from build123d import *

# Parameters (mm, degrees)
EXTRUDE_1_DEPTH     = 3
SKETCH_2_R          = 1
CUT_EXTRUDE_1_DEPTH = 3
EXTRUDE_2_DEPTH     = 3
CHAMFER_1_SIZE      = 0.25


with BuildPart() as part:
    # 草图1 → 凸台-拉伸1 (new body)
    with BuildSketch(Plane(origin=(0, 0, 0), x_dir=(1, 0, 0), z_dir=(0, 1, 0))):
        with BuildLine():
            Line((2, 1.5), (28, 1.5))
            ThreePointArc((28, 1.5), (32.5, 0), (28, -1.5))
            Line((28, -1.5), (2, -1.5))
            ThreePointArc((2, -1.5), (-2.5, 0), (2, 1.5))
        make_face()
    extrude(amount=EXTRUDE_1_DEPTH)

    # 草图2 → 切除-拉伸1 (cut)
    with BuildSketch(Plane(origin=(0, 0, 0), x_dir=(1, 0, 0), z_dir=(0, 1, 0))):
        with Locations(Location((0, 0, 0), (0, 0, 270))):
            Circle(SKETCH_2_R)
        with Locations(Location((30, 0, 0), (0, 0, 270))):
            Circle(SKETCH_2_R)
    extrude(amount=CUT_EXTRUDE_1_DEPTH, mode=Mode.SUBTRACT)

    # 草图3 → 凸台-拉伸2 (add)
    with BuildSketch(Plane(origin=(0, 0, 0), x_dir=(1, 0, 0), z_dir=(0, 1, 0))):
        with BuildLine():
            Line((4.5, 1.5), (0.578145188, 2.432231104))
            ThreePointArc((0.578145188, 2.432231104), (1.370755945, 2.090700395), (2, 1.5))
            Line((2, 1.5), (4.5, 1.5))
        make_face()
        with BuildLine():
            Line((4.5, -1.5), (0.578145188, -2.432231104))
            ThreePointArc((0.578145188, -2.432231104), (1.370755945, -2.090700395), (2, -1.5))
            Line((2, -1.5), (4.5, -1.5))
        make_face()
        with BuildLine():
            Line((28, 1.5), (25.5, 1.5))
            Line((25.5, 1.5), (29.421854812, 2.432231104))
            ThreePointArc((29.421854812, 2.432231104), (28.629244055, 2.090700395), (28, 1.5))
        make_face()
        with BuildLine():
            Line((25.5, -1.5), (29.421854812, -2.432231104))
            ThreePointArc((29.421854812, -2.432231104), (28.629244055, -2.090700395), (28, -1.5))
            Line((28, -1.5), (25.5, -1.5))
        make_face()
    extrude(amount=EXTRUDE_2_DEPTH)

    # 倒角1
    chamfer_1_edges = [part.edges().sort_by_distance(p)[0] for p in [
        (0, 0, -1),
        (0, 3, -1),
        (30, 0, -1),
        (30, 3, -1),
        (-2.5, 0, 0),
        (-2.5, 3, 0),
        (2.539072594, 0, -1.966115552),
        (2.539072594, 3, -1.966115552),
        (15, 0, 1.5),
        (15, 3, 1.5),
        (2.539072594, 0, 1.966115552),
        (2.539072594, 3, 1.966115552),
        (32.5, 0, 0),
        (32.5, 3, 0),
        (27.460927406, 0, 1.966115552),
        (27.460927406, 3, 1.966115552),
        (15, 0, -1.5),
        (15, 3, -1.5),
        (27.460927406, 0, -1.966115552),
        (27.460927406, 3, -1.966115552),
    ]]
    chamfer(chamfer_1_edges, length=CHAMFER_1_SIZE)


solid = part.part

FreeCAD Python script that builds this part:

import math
import FreeCAD as App
import Part
import Sketcher


def edges_at(feature, points):
    """Names of the edges that pass closest to the given points."""
    edges = feature.Shape.Edges
    near = lambda p: min(range(len(edges)), key=lambda i: edges[i].distToShape(Part.Vertex(*p))[0])
    return sorted({f"Edge{near(p) + 1}" for p in points})

doc = App.newDocument("Part")
body = doc.addObject("PartDesign::Body", "Body")

sketch1 = body.newObject("Sketcher::SketchObject", "Sketch")
sketch1.AttachmentSupport = (doc.getObject("XZ_Plane"), [""])
sketch1.MapMode = "FlatFace"
sketch1.addGeometry([
    Part.LineSegment(App.Vector(28, -1.5, 0), App.Vector(2, -1.5, 0)),
    Part.ArcOfCircle(Part.Circle(App.Vector(0, 0, 0), App.Vector(0, 0, 1), 2.5), math.radians(37), math.radians(323)),
    Part.LineSegment(App.Vector(2, 1.5, 0), App.Vector(28, 1.5, 0)),
    Part.ArcOfCircle(Part.Circle(App.Vector(30, 0, 0), App.Vector(0, 0, 1), 2.5), math.radians(-143), math.radians(143)),
], False)
sketch1.addConstraint([
    Sketcher.Constraint("Coincident", 0, 2, 1, 2),
    Sketcher.Constraint("Coincident", 1, 1, 2, 1),
    Sketcher.Constraint("Coincident", 2, 2, 3, 2),
    Sketcher.Constraint("Coincident", 3, 1, 0, 1),
    Sketcher.Constraint("Horizontal", 0),
    Sketcher.Constraint("Horizontal", 2),
    Sketcher.Constraint("Coincident", 1, 3, -1, 1),
    Sketcher.Constraint("Equal", 1, 3),
    Sketcher.Constraint("Symmetric", 2, 2, 3, 1, -1),
    Sketcher.Constraint("Radius", 1, 2.5),
    Sketcher.Constraint("DistanceX", 0, 2, 0, 1, 26.0),
    Sketcher.Constraint("DistanceX", -1, 1, 3, 3, 30.0),
])
pad1 = body.newObject("PartDesign::Pad", "Pad")
pad1.Profile = sketch1
pad1.Length = 3
pad1.Reversed = True

sketch2 = body.newObject("Sketcher::SketchObject", "Sketch001")
sketch2.AttachmentSupport = (doc.getObject("XZ_Plane"), [""])
sketch2.MapMode = "FlatFace"
sketch2.addGeometry([
    Part.Circle(App.Vector(0, 0, 0), App.Vector(0, 0, 1), 1),
    Part.Circle(App.Vector(30, 0, 0), App.Vector(0, 0, 1), 1),
], False)
sketch2.addConstraint([
    Sketcher.Constraint("Coincident", 0, 3, -1, 1),
    Sketcher.Constraint("Equal", 0, 1),
    Sketcher.Constraint("PointOnObject", 1, 3, -1),
    Sketcher.Constraint("Diameter", 0, 2.0),
    Sketcher.Constraint("DistanceX", -1, 1, 1, 3, 30.0),
])
pocket1 = body.newObject("PartDesign::Pocket", "Pocket")
pocket1.Profile = sketch2
pocket1.Length = 3

sketch3 = body.newObject("Sketcher::SketchObject", "Sketch002")
sketch3.AttachmentSupport = (doc.getObject("XZ_Plane"), [""])
sketch3.MapMode = "FlatFace"
sketch3.addGeometry([
    Part.LineSegment(App.Vector(4.5, -1.5, 0), App.Vector(0.6, -2.4, 0)),
    Part.ArcOfCircle(Part.Circle(App.Vector(0, 0, 0), App.Vector(0, 0, 1), 2.5), math.radians(-77), math.radians(-37)),
    Part.LineSegment(App.Vector(2, -1.5, 0), App.Vector(4.5, -1.5, 0)),
    Part.LineSegment(App.Vector(0.6, 2.4, 0), App.Vector(4.5, 1.5, 0)),
    Part.LineSegment(App.Vector(4.5, 1.5, 0), App.Vector(2, 1.5, 0)),
    Part.ArcOfCircle(Part.Circle(App.Vector(0, 0, 0), App.Vector(0, 0, 1), 2.5), math.radians(37), math.radians(77)),
    Part.LineSegment(App.Vector(25.5, -1.5, 0), App.Vector(28, -1.5, 0)),
    Part.ArcOfCircle(Part.Circle(App.Vector(30, 0, 0), App.Vector(0, 0, 1), 2.5), math.radians(-143), math.radians(-103)),
    Part.LineSegment(App.Vector(29.4, -2.4, 0), App.Vector(25.5, -1.5, 0)),
    Part.LineSegment(App.Vector(25.5, 1.5, 0), App.Vector(29.4, 2.4, 0)),
    Part.ArcOfCircle(Part.Circle(App.Vector(30, 0, 0), App.Vector(0, 0, 1), 2.5), math.radians(103), math.radians(143)),
    Part.LineSegment(App.Vector(28, 1.5, 0), App.Vector(25.5, 1.5, 0)),
], False)
sketch3.addConstraint([
    Sketcher.Constraint("Tangent", 0, 2, 1, 1),
    Sketcher.Constraint("Coincident", 1, 2, 2, 1),
    Sketcher.Constraint("Coincident", 2, 2, 0, 1),
    Sketcher.Constraint("Coincident", 3, 2, 4, 1),
    Sketcher.Constraint("Coincident", 4, 2, 5, 1),
    Sketcher.Constraint("Tangent", 5, 2, 3, 1),
    Sketcher.Constraint("Coincident", 6, 2, 7, 1),
    Sketcher.Constraint("Tangent", 7, 2, 8, 1),
    Sketcher.Constraint("Coincident", 8, 2, 6, 1),
    Sketcher.Constraint("Tangent", 9, 2, 10, 1),
    Sketcher.Constraint("Coincident", 10, 2, 11, 1),
    Sketcher.Constraint("Coincident", 11, 2, 9, 1),
    Sketcher.Constraint("Horizontal", 2),
    Sketcher.Constraint("Horizontal", 4),
    Sketcher.Constraint("Horizontal", 6),
    Sketcher.Constraint("Horizontal", 11),
    Sketcher.Constraint("Coincident", 1, 3, -1, 1),
    Sketcher.Constraint("Coincident", 5, 3, -1, 1),
    Sketcher.Constraint("Coincident", 10, 3, 7, 3),
    Sketcher.Constraint("Equal", 1, 5),
    Sketcher.Constraint("Equal", 5, 7),
    Sketcher.Constraint("Equal", 7, 10),
    Sketcher.Constraint("Symmetric", 2, 2, 3, 2, -1),
    Sketcher.Constraint("Symmetric", 7, 2, 9, 2, -1),
    Sketcher.Constraint("Parallel", 3, 8),
    Sketcher.Constraint("Horizontal", 2, 2, 6, 2),
    Sketcher.Constraint("Horizontal", 4, 2, 10, 2),
    Sketcher.Constraint("Radius", 1, 2.5),
    Sketcher.Constraint("DistanceX", 2, 1, 2, 2, 2.5),
    Sketcher.Constraint("DistanceX", -1, 1, 7, 3, 30.0),
    Sketcher.Constraint("DistanceX", -1, 1, 1, 2, 2.0),
])
pad2 = body.newObject("PartDesign::Pad", "Pad001")
pad2.Profile = sketch3
pad2.Length = 3
pad2.Reversed = True
doc.recompute()

chamfer = body.newObject("PartDesign::Chamfer", "Chamfer")
chamfer.Base = (pad2, edges_at(pad2, [
    (0, 0, -1),
    (0, 3, -1),
    (30, 0, -1),
    (30, 3, -1),
    (-2.5, 0, 0),
    (-2.5, 3, 0),
    (2.539, 0, -1.966),
    (2.539, 3, -1.966),
    (15, 0, 1.5),
    (15, 3, 1.5),
    (2.539, 0, 1.966),
    (2.539, 3, 1.966),
    (32.5, 0, 0),
    (32.5, 3, 0),
    (27.461, 0, 1.966),
    (27.461, 3, 1.966),
    (15, 0, -1.5),
    (15, 3, -1.5),
    (27.461, 0, -1.966),
    (27.461, 3, -1.966),
]))
chamfer.Size = 0.25

doc.recompute()
